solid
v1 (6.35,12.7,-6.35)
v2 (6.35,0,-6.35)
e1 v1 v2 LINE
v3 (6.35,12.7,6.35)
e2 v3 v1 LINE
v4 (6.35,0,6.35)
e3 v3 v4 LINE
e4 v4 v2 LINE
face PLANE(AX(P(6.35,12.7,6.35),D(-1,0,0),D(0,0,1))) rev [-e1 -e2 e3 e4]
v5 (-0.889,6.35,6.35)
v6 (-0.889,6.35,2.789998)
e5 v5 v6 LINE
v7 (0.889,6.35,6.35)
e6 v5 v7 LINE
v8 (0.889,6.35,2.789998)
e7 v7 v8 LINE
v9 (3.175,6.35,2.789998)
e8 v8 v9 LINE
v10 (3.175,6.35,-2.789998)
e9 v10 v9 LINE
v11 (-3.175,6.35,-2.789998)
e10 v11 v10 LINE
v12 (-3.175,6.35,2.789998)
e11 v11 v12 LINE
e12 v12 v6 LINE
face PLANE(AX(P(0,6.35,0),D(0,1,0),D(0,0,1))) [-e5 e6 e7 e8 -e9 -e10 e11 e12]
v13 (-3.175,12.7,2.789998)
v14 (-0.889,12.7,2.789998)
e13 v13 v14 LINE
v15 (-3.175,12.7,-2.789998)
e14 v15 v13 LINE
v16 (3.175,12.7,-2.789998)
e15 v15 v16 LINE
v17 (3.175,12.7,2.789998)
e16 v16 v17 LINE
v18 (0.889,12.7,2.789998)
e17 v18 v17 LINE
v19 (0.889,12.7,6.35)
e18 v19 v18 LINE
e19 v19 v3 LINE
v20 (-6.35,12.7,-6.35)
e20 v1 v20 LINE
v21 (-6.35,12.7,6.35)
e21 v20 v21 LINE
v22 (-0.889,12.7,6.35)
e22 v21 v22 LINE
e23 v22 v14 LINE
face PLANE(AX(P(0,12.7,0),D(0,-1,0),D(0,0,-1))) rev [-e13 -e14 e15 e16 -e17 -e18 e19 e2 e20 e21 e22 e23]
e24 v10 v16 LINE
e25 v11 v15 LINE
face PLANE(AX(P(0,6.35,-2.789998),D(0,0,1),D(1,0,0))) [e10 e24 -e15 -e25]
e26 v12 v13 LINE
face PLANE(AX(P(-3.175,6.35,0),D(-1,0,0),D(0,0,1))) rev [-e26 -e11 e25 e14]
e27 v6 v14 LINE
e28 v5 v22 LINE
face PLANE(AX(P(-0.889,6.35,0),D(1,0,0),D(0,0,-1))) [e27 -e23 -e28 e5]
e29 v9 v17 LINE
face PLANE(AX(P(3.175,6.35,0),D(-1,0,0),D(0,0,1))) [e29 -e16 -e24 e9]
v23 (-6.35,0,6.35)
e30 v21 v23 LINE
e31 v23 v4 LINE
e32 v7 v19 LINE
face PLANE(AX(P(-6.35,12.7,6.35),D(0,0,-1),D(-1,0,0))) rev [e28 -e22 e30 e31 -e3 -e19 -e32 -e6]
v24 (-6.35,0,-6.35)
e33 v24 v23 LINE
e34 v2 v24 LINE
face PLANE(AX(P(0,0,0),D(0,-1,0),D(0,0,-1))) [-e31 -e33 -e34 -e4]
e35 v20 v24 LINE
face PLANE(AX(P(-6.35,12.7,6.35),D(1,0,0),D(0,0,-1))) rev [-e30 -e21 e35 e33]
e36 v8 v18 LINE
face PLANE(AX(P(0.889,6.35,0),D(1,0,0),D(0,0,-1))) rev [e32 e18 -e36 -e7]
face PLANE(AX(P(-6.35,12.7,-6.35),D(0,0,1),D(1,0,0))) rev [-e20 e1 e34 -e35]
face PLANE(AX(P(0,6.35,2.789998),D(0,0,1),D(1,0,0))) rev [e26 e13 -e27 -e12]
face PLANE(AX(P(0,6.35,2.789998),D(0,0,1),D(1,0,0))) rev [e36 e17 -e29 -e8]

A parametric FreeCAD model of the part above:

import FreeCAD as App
import Part
import Sketcher
from FreeCAD import Vector
Q = App.Units.Quantity


def add_polygon(sketch, points):
    """Adds a closed chain of lines whose ends are joined by coincident constraints."""
    first, n = sketch.GeometryCount, len(points)
    for a, b in zip(points, points[1:] + points[:1]):
        sketch.addGeometry(Part.LineSegment(App.Vector(*a, 0), App.Vector(*b, 0)), False)
    for i in range(n):
        sketch.addConstraint(Sketcher.Constraint("Coincident", first + i, 2, first + (i + 1) % n, 1))

doc = App.newDocument("Part")
body = doc.addObject("PartDesign::Body", "Body")

# Sketch on XZ plane
sketch1 = body.newObject("Sketcher::SketchObject", "Sketch")
sketch1.AttachmentSupport = (doc.getObject("XZ_Plane"), [""])
sketch1.MapMode = "FlatFace"
add_polygon(sketch1, [(-6, -6), (-6, 6), (6, 6), (6, -6)])  # lines 0-3
sketch1.addConstraint(Sketcher.Constraint("Vertical", 0))
sketch1.addConstraint(Sketcher.Constraint("Horizontal", 1))
sketch1.addConstraint(Sketcher.Constraint("Vertical", 2))
sketch1.addConstraint(Sketcher.Constraint("Horizontal", 3))
sketch1.addConstraint(Sketcher.Constraint("Symmetric", 0, 2, 2, 2, -1, 1))
sketch1.addConstraint(Sketcher.Constraint("Equal", 3, 0))
sketch1.addConstraint(Sketcher.Constraint("DistanceX", 1, 1, 1, 2, Q("0.5 in")))
pad1 = body.newObject("PartDesign::Pad", "Pad")
pad1.Profile = sketch1
pad1.Length = Q("0.5 in")
pad1.Reversed = True

# Sketch on XZ plane
sketch2 = body.newObject("Sketcher::SketchObject", "Sketch001")
sketch2.AttachmentSupport = (doc.getObject("XZ_Plane"), [""])
sketch2.MapMode = "FlatFace"
sketch2.AttachmentOffset = App.Placement(Vector(0, 0, -0.5 * 25.4), App.Rotation())
add_polygon(sketch2, [(-3.2, 2.8), (-0.9, 2.8), (-0.9, 6.3), (0.9, 6.3), (0.9, 2.8), (3.2, 2.8), (3.2, -2.8), (-3.2, -2.8)])  # lines 0-7
sketch2.addConstraint(Sketcher.Constraint("Horizontal", 0))
sketch2.addConstraint(Sketcher.Constraint("Vertical", 1))
sketch2.addConstraint(Sketcher.Constraint("Horizontal", 2))
sketch2.addConstraint(Sketcher.Constraint("Vertical", 3))
sketch2.addConstraint(Sketcher.Constraint("Horizontal", 4))
sketch2.addConstraint(Sketcher.Constraint("Vertical", 5))
sketch2.addConstraint(Sketcher.Constraint("Horizontal", 6))
sketch2.addConstraint(Sketcher.Constraint("Vertical", 7))
sketch2.addConstraint(Sketcher.Constraint("Symmetric", 4, 2, 6, 2, -1, 1))
sketch2.addConstraint(Sketcher.Constraint("Symmetric", 0, 2, 3, 2, -2))
sketch2.addConstraint(Sketcher.Constraint("DistanceX", 0, 1, 0, 2, Q("0.09 in")))
sketch2.addConstraint(Sketcher.Constraint("DistanceX", 2, 1, 2, 2, Q("0.07 in")))
sketch2.addConstraint(Sketcher.Constraint("DistanceY", -1, 1, 1, 2, Q("0.25 in")))
sketch2.addConstraint(Sketcher.Constraint("DistanceY", 1, 1, 1, 2, Q("3.560002 mm")))
pocket1 = body.newObject("PartDesign::Pocket", "Pocket")
pocket1.Profile = sketch2
pocket1.Length = Q("0.25 in")
pocket1.Reversed = True

doc.recompute()
